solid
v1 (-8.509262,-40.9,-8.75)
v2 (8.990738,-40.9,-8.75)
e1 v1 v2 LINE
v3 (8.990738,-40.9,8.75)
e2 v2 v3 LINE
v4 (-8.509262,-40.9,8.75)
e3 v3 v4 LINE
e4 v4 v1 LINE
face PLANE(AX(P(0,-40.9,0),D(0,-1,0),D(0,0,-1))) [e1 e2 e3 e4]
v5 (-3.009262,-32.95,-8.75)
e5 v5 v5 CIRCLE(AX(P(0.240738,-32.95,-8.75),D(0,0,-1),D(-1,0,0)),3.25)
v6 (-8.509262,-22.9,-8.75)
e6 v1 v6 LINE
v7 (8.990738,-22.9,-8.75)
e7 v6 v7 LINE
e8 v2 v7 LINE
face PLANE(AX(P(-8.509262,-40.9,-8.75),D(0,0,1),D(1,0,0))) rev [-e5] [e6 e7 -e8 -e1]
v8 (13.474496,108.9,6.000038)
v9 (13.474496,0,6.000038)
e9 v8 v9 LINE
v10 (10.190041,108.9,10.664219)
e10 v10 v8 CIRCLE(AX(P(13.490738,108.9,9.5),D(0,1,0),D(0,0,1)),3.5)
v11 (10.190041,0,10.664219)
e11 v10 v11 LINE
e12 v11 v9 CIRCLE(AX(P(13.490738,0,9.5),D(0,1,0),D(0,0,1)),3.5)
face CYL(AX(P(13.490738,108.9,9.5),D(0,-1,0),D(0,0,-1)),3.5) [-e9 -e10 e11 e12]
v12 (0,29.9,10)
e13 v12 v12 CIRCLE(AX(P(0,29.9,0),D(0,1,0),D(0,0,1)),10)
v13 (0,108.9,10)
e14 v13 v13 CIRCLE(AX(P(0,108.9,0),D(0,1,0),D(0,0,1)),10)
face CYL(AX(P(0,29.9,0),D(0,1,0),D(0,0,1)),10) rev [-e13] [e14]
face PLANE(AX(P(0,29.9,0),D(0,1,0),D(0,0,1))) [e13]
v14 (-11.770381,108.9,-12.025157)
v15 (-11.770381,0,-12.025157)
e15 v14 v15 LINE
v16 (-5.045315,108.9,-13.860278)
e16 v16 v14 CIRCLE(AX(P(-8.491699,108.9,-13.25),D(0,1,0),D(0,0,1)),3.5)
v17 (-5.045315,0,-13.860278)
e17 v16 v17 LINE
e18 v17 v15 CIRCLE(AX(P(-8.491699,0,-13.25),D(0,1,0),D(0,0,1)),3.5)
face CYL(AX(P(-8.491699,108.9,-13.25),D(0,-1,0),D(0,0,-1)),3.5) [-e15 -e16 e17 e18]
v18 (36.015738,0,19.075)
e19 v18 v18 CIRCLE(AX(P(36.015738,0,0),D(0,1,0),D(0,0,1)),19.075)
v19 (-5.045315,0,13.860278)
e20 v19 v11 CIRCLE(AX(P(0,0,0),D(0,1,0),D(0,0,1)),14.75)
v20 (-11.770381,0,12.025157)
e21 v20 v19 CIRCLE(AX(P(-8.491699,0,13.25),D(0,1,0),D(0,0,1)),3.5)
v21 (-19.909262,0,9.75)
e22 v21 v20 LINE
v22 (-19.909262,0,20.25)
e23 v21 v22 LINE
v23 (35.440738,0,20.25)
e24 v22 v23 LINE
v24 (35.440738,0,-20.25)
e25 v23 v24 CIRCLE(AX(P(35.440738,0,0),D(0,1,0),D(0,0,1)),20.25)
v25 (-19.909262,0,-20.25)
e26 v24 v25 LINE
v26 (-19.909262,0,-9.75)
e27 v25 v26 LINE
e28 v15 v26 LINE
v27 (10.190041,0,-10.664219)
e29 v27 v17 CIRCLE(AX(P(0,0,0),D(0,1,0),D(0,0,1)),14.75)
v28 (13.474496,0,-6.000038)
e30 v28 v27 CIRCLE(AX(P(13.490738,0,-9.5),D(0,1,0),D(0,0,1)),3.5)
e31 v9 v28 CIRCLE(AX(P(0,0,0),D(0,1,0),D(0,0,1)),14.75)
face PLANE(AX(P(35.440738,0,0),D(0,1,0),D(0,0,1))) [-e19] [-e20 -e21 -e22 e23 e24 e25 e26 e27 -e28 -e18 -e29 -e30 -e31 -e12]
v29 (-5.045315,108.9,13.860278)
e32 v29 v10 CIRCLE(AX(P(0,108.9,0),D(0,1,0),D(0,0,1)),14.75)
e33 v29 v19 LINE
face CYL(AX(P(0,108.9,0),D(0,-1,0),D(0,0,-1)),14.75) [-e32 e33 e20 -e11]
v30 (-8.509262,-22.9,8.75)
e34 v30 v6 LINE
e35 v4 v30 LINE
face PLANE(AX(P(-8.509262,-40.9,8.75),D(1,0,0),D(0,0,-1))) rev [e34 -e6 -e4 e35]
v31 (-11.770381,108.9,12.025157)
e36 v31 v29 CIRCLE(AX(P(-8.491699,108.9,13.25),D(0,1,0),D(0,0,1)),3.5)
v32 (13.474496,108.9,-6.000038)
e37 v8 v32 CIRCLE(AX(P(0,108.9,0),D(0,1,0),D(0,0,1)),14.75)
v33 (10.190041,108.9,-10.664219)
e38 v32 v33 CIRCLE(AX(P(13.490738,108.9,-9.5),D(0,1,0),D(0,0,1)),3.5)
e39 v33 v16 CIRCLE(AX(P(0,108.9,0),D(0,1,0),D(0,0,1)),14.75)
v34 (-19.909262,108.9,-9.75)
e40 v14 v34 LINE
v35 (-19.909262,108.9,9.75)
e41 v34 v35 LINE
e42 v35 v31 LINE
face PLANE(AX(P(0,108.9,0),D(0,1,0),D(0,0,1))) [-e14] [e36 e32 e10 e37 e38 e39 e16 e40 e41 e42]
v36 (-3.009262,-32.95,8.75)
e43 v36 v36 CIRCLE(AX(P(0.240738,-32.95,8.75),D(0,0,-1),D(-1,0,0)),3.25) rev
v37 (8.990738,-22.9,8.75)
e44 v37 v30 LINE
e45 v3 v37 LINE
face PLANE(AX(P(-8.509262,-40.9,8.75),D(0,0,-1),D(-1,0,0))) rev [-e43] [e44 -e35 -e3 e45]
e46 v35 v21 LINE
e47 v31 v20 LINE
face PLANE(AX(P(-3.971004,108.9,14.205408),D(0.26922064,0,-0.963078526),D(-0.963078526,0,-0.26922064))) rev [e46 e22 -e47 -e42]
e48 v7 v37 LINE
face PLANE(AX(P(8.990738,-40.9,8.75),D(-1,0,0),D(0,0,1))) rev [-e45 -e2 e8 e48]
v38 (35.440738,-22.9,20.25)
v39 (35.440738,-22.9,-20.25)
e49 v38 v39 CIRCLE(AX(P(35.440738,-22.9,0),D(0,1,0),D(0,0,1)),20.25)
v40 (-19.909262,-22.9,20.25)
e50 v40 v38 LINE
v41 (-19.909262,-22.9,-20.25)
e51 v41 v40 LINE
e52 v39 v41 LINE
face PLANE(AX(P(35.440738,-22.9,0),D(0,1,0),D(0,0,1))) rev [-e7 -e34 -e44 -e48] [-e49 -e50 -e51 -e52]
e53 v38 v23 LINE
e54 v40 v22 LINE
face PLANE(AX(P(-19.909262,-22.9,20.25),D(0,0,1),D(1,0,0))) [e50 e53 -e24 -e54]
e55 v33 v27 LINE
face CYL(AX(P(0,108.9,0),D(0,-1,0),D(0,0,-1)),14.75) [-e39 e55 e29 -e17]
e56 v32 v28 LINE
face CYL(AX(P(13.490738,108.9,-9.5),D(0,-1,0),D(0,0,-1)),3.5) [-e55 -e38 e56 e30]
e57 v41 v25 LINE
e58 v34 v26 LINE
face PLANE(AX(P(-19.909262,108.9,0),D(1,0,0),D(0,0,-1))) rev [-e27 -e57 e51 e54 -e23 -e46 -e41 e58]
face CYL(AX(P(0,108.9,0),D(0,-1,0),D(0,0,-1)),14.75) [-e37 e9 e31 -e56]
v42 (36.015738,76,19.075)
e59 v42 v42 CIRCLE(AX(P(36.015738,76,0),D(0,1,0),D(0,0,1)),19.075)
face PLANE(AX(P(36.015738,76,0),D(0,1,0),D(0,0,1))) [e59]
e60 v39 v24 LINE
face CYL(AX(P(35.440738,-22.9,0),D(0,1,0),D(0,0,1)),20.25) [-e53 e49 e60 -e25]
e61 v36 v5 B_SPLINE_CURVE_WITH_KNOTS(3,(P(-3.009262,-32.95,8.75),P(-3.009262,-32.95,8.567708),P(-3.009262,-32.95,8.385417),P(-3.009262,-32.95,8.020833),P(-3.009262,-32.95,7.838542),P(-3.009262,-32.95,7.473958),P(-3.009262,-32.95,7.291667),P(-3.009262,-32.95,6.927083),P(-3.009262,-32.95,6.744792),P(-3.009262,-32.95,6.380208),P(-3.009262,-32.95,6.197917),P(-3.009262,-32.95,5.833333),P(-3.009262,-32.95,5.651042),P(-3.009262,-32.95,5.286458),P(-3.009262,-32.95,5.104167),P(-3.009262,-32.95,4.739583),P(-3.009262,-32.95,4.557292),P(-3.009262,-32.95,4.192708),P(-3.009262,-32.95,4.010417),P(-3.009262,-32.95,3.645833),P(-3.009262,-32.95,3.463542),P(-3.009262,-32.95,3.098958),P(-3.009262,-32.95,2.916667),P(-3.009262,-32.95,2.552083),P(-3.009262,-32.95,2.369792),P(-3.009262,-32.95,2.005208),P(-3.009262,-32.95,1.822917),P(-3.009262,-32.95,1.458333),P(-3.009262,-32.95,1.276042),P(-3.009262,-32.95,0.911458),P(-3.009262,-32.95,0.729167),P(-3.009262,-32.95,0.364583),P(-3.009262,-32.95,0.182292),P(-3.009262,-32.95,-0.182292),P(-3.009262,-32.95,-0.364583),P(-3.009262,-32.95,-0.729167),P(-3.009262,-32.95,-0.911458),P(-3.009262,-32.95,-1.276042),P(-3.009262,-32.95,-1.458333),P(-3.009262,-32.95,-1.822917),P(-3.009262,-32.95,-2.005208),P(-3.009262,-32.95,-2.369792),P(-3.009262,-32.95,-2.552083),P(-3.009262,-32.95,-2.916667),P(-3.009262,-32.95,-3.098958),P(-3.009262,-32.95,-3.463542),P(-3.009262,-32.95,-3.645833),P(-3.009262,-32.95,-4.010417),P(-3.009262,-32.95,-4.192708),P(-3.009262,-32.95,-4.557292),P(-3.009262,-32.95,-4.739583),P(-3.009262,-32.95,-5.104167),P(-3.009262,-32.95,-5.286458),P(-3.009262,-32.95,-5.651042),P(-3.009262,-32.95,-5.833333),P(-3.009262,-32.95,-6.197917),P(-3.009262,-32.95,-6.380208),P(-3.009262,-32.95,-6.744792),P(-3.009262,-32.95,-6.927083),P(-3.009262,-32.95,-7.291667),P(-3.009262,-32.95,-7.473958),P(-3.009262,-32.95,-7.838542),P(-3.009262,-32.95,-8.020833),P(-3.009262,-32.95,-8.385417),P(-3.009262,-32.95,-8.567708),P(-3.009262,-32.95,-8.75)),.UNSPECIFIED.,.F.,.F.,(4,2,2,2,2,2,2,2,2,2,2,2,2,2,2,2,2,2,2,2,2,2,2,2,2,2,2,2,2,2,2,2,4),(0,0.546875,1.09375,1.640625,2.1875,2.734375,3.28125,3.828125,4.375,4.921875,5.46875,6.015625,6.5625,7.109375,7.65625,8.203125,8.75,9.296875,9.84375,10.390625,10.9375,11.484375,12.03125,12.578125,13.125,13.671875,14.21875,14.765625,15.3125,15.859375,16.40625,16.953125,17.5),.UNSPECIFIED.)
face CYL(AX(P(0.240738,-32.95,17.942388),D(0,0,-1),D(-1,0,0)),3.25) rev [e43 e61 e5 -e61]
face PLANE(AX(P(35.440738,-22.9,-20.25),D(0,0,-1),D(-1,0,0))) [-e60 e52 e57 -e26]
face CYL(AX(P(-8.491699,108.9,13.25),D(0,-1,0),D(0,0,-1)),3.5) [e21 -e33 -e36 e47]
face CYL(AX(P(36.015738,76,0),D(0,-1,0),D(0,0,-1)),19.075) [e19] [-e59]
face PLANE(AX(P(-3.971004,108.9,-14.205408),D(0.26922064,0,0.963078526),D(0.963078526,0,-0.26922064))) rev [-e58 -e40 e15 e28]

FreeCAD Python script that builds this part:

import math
import FreeCAD as App
import Part
import Sketcher
from FreeCAD import Vector
Q = App.Units.Quantity


def add_polygon(sketch, points):
    """Adds a closed chain of lines whose ends are joined by coincident constraints."""
    first, n = sketch.GeometryCount, len(points)
    for a, b in zip(points, points[1:] + points[:1]):
        sketch.addGeometry(Part.LineSegment(App.Vector(*a, 0), App.Vector(*b, 0)), False)
    for i in range(n):
        sketch.addConstraint(Sketcher.Constraint("Coincident", first + i, 2, first + (i + 1) % n, 1))

doc = App.newDocument("Part")
body = doc.addObject("PartDesign::Body", "Body")

# Sketch on XZ plane
sketch1 = body.newObject("Sketcher::SketchObject", "Sketch")
sketch1.AttachmentSupport = (doc.getObject("XZ_Plane"), [""])
sketch1.MapMode = "FlatFace"
sketch1.addGeometry([
    Part.ArcOfCircle(Part.Circle(Vector(0, 0, 0), Vector(0, 0, 1), 14.8), math.radians(-110), math.radians(-46)),  # 0
    Part.ArcOfCircle(Part.Circle(Vector(-8.5, -13.2, 0), Vector(0, 0, 1), 3.5), math.radians(160), math.radians(350)),  # 1
    Part.LineSegment(Vector(-11.8, -12, 0), Vector(-19.9, -9.8, 0)),  # 2
    Part.LineSegment(Vector(-19.9, -9.8, 0), Vector(-19.9, 9.8, 0)),  # 3
    Part.LineSegment(Vector(-19.9, 9.8, 0), Vector(-11.8, 12, 0)),  # 4
    Part.ArcOfCircle(Part.Circle(Vector(-8.5, 13.2, 0), Vector(0, 0, 1), 3.5), math.radians(10), math.radians(200)),  # 5
    Part.ArcOfCircle(Part.Circle(Vector(0, 0, 0), Vector(0, 0, 1), 14.8), math.radians(46), math.radians(110)),  # 6
    Part.ArcOfCircle(Part.Circle(Vector(13.5, 9.5, 0), Vector(0, 0, 1), 3.5), math.radians(-90), math.radians(161)),  # 7
    Part.ArcOfCircle(Part.Circle(Vector(0, 0, 0), Vector(0, 0, 1), 14.7), math.radians(-24), math.radians(24)),  # 8
    Part.ArcOfCircle(Part.Circle(Vector(13.5, -9.5, 0), Vector(0, 0, 1), 3.5), math.radians(-161), math.radians(90)),  # 9
], False)
sketch1.addConstraint([
    Sketcher.Constraint("Coincident", 0, 1, 1, 2),
    Sketcher.Constraint("Coincident", 1, 1, 2, 1),
    Sketcher.Constraint("Coincident", 2, 2, 3, 1),
    Sketcher.Constraint("Coincident", 3, 2, 4, 1),
    Sketcher.Constraint("Coincident", 4, 2, 5, 2),
    Sketcher.Constraint("Coincident", 5, 1, 6, 2),
    Sketcher.Constraint("Coincident", 6, 1, 7, 2),
    Sketcher.Constraint("Coincident", 7, 1, 8, 2),
    Sketcher.Constraint("Coincident", 8, 1, 9, 2),
    Sketcher.Constraint("Coincident", 9, 1, 0, 2),
    Sketcher.Constraint("Vertical", 3),
    Sketcher.Constraint("Coincident", 0, 3, -1, 1),
    Sketcher.Constraint("Coincident", 6, 3, -1, 1),
    Sketcher.Constraint("Coincident", 8, 3, -1, 1),
    Sketcher.Constraint("Equal", 1, 5),
    Sketcher.Constraint("Equal", 0, 6),
    Sketcher.Constraint("Equal", 5, 7),
    Sketcher.Constraint("Equal", 6, 8),
    Sketcher.Constraint("Equal", 7, 9),
    Sketcher.Constraint("Symmetric", 1, 3, 5, 3, -1),
    Sketcher.Constraint("Symmetric", 7, 3, 9, 3, -1),
    Sketcher.Constraint("Vertical", 1, 1, 4, 2),
    Sketcher.Constraint("Equal", 2, 4),
    Sketcher.Constraint("Radius", 1, Q("3.5 mm")),
    Sketcher.Constraint("Radius", 0, Q("14.75 mm")),
    Sketcher.Constraint("DistanceY", 3, 1, 3, 2, Q("19.5 mm")),
    Sketcher.Constraint("DistanceY", 9, 3, 7, 3, Q("19 mm")),
    Sketcher.Constraint("DistanceY", 1, 3, 5, 3, Q("26.5 mm")),
    Sketcher.Constraint("Distance", 2, Q("8.450901 mm")),
    Sketcher.Constraint("DistanceX", 1, 3, -1, 1, Q("8.491699 mm")),
    Sketcher.Constraint("DistanceX", 1, 1, -1, 1, Q("11.770381 mm")),
    Sketcher.Constraint("DistanceX", -1, 1, 6, 1, Q("10.190041 mm")),
])
pad1 = body.newObject("PartDesign::Pad", "Pad")
pad1.Profile = sketch1
pad1.Length = 108.9
pad1.Reversed = True
body2 = doc.addObject("PartDesign::Body", "Body001")

# Sketch on XZ plane
sketch2 = body2.newObject("Sketcher::SketchObject", "Sketch001")
sketch2.AttachmentSupport = (doc.getObject("XZ_Plane001"), [""])
sketch2.MapMode = "FlatFace"
sketch2.addGeometry(Part.Circle(Vector(36, 0, 0), Vector(0, 0, 1), 19), False)
sketch2.addConstraint([
    Sketcher.Constraint("PointOnObject", 0, 3, -1),
    Sketcher.Constraint("Diameter", 0, Q("38.15 mm")),
    Sketcher.Constraint("DistanceX", -1, 1, 0, 3, Q("36.015738 mm")),
])
pad2 = body2.newObject("PartDesign::Pad", "Pad001")
pad2.Profile = sketch2
pad2.Length = 76
pad2.Reversed = True
body.AllowCompound = True
doc.recompute()

boolean = body.newObject("PartDesign::Boolean", "Boolean")
boolean.Type = "Fuse"
boolean.addObjects([body2])

# Sketch on XZ plane
sketch3 = body.newObject("Sketcher::SketchObject", "Sketch002")
sketch3.AttachmentSupport = (doc.getObject("XZ_Plane"), [""])
sketch3.MapMode = "FlatFace"
sketch3.addGeometry([
    Part.LineSegment(Vector(-20, -20, 0), Vector(-20, 20, 0)),
    Part.LineSegment(Vector(-20, 20, 0), Vector(35, 20, 0)),
    Part.ArcOfCircle(Part.Circle(Vector(35, 0, 0), Vector(0, 0, 1), 20), math.radians(-90), math.radians(90)),
    Part.LineSegment(Vector(35, -20, 0), Vector(-20, -20, 0)),
], False)
sketch3.addConstraint([
    Sketcher.Constraint("Coincident", 0, 2, 1, 1),
    Sketcher.Constraint("Tangent", 1, 2, 2, 2),
    Sketcher.Constraint("Tangent", 2, 1, 3, 1),
    Sketcher.Constraint("Coincident", 3, 2, 0, 1),
    Sketcher.Constraint("Vertical", 0),
    Sketcher.Constraint("Horizontal", 1),
    Sketcher.Constraint("Horizontal", 3),
    Sketcher.Constraint("PointOnObject", 2, 3, -1),
    Sketcher.Constraint("Radius", 2, Q("20.25 mm")),
    Sketcher.Constraint("DistanceX", 1, 1, 1, 2, Q("55.35 mm")),
    Sketcher.Constraint("DistanceX", -1, 1, 2, 3, Q("35.440738 mm")),
])
pad3 = body.newObject("PartDesign::Pad", "Pad002")
pad3.Profile = sketch3
pad3.Length = 22.9

# Sketch on XZ plane
sketch4 = body.newObject("Sketcher::SketchObject", "Sketch003")
sketch4.AttachmentSupport = (doc.getObject("XZ_Plane"), [""])
sketch4.MapMode = "FlatFace"
sketch4.AttachmentOffset = App.Placement(Vector(0, 0, 22.9), App.Rotation())
add_polygon(sketch4, [(-9, 9), (-9, -9), (9, -9), (9, 9)])  # lines 0-3
sketch4.addConstraint([
    Sketcher.Constraint("Vertical", 0),
    Sketcher.Constraint("Horizontal", 1),
    Sketcher.Constraint("Vertical", 2),
    Sketcher.Constraint("Horizontal", 3),
    Sketcher.Constraint("Equal", 3, 0),
    Sketcher.Constraint("DistanceX", 1, 1, 1, 2, Q("17.5 mm")),
    Sketcher.Constraint("DistanceY", 0, 2, -1, 1, Q("8.75 mm")),
    Sketcher.Constraint("DistanceX", 0, 2, -1, 1, Q("8.509262 mm")),
])
pad4 = body.newObject("PartDesign::Pad", "Pad003")
pad4.Profile = sketch4
pad4.Length = 18

# Sketch on XY plane
sketch5 = body.newObject("Sketcher::SketchObject", "Sketch004")
sketch5.AttachmentSupport = (doc.getObject("XY_Plane"), [""])
sketch5.MapMode = "FlatFace"
sketch5.AttachmentOffset = App.Placement(Vector(0, 0, -8.75), App.Rotation())
sketch5.addGeometry(Part.Circle(Vector(0.2, -33, 0), Vector(0, 0, 1), 3.2), False)
sketch5.addConstraint([
    Sketcher.Constraint("Diameter", 0, Q("6.5 mm")),
    Sketcher.Constraint("DistanceY", 0, 3, -1, 1, Q("32.95 mm")),
    Sketcher.Constraint("DistanceX", -1, 1, 0, 3, Q("0.240738 mm")),
])
pocket1 = body.newObject("PartDesign::Pocket", "Pocket")
pocket1.Profile = sketch5
pocket1.Length = 17.5
pocket1.Reversed = True

# Sketch on XZ plane
sketch6 = body.newObject("Sketcher::SketchObject", "Sketch005")
sketch6.AttachmentSupport = (doc.getObject("XZ_Plane"), [""])
sketch6.MapMode = "FlatFace"
sketch6.AttachmentOffset = App.Placement(Vector(0, 0, -108.9), App.Rotation())
sketch6.addGeometry(Part.Circle(Vector(0, 0, 0), Vector(0, 0, 1), 10), False)
sketch6.addConstraint([
    Sketcher.Constraint("Coincident", 0, 3, -1, 1),
    Sketcher.Constraint("Diameter", 0, Q("20 mm")),
])
pocket2 = body.newObject("PartDesign::Pocket", "Pocket001")
pocket2.Profile = sketch6
pocket2.Length = 79
pocket2.Reversed = True

doc.recompute()
